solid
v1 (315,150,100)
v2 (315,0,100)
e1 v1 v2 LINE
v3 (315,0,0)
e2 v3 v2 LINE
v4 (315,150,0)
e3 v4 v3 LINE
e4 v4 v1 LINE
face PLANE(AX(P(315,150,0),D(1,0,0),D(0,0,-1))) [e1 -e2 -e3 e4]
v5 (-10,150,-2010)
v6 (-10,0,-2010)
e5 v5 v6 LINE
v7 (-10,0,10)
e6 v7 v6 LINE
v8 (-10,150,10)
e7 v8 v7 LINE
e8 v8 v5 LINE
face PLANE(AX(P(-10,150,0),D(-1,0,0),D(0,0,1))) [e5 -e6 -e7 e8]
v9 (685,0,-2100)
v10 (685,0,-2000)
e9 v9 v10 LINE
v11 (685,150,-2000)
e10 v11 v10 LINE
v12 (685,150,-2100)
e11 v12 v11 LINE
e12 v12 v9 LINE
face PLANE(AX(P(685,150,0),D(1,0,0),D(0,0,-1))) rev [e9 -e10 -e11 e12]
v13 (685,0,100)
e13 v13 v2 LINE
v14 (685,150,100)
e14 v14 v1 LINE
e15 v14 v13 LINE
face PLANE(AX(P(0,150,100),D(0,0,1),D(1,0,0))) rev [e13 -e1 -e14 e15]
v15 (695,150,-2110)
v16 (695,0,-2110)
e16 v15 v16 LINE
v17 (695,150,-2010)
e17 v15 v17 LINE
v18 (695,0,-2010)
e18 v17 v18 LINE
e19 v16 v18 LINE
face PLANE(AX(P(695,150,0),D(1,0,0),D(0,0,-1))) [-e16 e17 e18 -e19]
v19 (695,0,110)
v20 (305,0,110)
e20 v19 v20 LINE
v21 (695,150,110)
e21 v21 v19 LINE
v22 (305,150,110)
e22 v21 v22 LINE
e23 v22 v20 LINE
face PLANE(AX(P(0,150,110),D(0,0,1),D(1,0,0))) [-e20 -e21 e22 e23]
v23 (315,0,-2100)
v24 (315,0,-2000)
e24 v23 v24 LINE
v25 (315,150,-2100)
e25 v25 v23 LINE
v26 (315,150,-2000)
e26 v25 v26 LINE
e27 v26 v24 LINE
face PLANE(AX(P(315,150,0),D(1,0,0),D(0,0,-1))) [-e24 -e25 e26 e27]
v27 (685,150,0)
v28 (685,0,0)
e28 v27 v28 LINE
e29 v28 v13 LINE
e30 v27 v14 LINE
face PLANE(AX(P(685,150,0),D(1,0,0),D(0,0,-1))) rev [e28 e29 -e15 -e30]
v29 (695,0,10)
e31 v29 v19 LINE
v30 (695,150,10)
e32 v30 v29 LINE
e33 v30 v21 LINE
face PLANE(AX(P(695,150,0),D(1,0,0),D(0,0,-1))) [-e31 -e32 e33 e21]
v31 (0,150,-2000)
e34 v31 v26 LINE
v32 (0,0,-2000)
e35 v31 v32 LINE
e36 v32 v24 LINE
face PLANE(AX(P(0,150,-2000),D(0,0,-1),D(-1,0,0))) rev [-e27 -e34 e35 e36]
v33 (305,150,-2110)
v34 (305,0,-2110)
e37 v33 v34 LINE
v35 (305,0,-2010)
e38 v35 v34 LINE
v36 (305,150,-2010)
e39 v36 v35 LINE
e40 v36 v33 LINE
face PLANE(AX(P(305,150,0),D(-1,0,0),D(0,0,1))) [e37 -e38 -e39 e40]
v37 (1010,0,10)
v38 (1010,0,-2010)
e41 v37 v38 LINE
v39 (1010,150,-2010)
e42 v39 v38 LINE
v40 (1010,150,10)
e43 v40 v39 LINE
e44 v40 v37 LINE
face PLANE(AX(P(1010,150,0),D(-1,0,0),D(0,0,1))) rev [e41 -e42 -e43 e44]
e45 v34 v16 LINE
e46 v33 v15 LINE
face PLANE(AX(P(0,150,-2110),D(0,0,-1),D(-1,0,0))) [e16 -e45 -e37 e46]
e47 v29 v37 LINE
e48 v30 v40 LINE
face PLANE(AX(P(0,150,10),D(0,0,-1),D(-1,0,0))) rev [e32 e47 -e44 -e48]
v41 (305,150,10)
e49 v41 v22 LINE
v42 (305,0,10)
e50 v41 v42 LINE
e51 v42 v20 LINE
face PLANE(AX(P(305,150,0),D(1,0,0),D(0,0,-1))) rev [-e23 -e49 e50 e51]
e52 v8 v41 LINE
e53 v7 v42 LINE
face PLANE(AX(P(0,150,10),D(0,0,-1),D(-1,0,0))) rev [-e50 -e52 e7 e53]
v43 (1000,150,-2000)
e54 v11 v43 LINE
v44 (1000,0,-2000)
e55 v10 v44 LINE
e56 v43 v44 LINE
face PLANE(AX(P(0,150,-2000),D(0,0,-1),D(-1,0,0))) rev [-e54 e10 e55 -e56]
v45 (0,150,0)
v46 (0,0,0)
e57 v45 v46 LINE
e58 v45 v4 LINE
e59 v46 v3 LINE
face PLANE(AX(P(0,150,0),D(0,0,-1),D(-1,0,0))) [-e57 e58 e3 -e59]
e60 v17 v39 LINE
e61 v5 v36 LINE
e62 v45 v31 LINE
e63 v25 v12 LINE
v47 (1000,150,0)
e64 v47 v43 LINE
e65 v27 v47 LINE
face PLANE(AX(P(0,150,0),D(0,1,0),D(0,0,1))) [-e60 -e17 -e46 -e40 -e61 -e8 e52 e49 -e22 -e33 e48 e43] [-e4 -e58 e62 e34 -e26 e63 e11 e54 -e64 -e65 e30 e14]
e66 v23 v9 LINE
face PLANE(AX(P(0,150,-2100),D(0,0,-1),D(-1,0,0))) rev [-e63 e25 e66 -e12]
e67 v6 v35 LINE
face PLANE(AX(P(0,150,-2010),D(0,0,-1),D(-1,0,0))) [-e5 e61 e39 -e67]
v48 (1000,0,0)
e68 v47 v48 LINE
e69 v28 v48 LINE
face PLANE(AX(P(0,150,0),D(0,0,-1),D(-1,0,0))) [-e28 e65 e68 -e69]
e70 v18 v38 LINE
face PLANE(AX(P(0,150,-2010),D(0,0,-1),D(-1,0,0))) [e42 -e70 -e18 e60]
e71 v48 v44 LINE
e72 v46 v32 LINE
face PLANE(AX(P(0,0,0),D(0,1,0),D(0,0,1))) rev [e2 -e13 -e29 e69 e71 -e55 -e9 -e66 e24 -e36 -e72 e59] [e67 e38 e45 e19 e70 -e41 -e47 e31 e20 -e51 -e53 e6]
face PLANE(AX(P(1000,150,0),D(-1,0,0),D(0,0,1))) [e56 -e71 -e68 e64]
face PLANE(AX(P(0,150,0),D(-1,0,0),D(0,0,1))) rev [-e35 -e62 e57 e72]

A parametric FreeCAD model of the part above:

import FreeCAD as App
import Part
import Sketcher
from FreeCAD import Vector
Q = App.Units.Quantity


def add_polygon(sketch, points):
    """Adds a closed chain of lines whose ends are joined by coincident constraints."""
    first, n = sketch.GeometryCount, len(points)
    for a, b in zip(points, points[1:] + points[:1]):
        sketch.addGeometry(Part.LineSegment(App.Vector(*a, 0), App.Vector(*b, 0)), False)
    for i in range(n):
        sketch.addConstraint(Sketcher.Constraint("Coincident", first + i, 2, first + (i + 1) % n, 1))

doc = App.newDocument("Part")
params = doc.addObject("Spreadsheet::Sheet", "Params")
for row, (alias, value) in enumerate([
    ("sketch1_width", "315 mm"),
    ("sketch1_width2", "390 mm"),
    ("sketch1_width3", "370 mm"),
    ("sketch1_height", "2020 mm"),
    ("sketch1_height2", "100 mm"),
    ("pad1_length", "150 mm"),
], start=1):
    params.set(f"A{row}", alias)
    params.set(f"B{row}", "=" + value)
    params.setAlias(f"B{row}", alias)

body = doc.addObject("PartDesign::Body", "Body")

sketch1 = body.newObject("Sketcher::SketchObject", "Sketch")
sketch1.AttachmentSupport = (doc.getObject("XZ_Plane"), [""])
sketch1.MapMode = "FlatFace"
add_polygon(sketch1, [(305, -2010), (-10, -2010), (-10, 10), (305, 10), (305, 110), (695, 110), (695, 10), (1010, 10), (1010, -2010), (695, -2010), (695, -2110), (305, -2110)])
add_polygon(sketch1, [(315, 100), (315, 0), (0, 0), (0, -2000), (315, -2000), (315, -2100), (685, -2100), (685, -2000), (1000, -2000), (1000, 0), (685, 0), (685, 100)])
sketch1.addConstraint([
    Sketcher.Constraint("Horizontal", 0),
    Sketcher.Constraint("Vertical", 1),
    Sketcher.Constraint("Horizontal", 2),
    Sketcher.Constraint("Vertical", 3),
    Sketcher.Constraint("Horizontal", 4),
    Sketcher.Constraint("Vertical", 5),
    Sketcher.Constraint("Horizontal", 6),
    Sketcher.Constraint("Vertical", 7),
    Sketcher.Constraint("Horizontal", 8),
    Sketcher.Constraint("Vertical", 9),
    Sketcher.Constraint("Horizontal", 10),
    Sketcher.Constraint("Vertical", 11),
    Sketcher.Constraint("Vertical", 12),
    Sketcher.Constraint("Horizontal", 13),
    Sketcher.Constraint("Vertical", 14),
    Sketcher.Constraint("Horizontal", 15),
    Sketcher.Constraint("Vertical", 16),
    Sketcher.Constraint("Horizontal", 17),
    Sketcher.Constraint("Vertical", 18),
    Sketcher.Constraint("Horizontal", 19),
    Sketcher.Constraint("Vertical", 20),
    Sketcher.Constraint("Horizontal", 21),
    Sketcher.Constraint("Vertical", 22),
    Sketcher.Constraint("Horizontal", 23),
    Sketcher.Constraint("Coincident", 13, 2, -1, 1),
    Sketcher.Constraint("PointOnObject", 20, 2, -1),
    Sketcher.Constraint("Horizontal", 2, 2, 5, 2),
    Sketcher.Constraint("Horizontal", 0, 2, 7, 2),
    Sketcher.Constraint("Horizontal", 15, 2, 18, 2),
    Sketcher.Constraint("Vertical", 5, 2, 8, 2),
    Sketcher.Constraint("Vertical", 3, 2, 10, 2),
    Sketcher.Constraint("Vertical", 12, 2, 15, 2),
    Sketcher.Constraint("Vertical", 18, 2, 21, 2),
    Sketcher.Constraint("Equal", 2, 6),
    Sketcher.Constraint("Equal", 8, 13),
    Sketcher.Constraint("Equal", 15, 19),
    Sketcher.Constraint("Equal", 5, 9),
    Sketcher.Constraint("Equal", 11, 12),
    Sketcher.Constraint("Equal", 12, 16),
    Sketcher.Constraint("DistanceX", 0, 2, 0, 1, Q("315 mm")),
    Sketcher.Constraint("DistanceX", 4, 1, 4, 2, Q("390 mm")),
    Sketcher.Constraint("DistanceX", 17, 1, 17, 2, Q("370 mm")),
    Sketcher.Constraint("DistanceY", 1, 1, 1, 2, Q("2020 mm")),
    Sketcher.Constraint("DistanceY", 3, 1, 3, 2, Q("100 mm")),
    Sketcher.Constraint("DistanceY", 14, 2, 14, 1, Q("2000 mm")),
    Sketcher.Constraint("DistanceX", 0, 2, -1, 1, Q("10 mm")),
    Sketcher.Constraint("DistanceY", 0, 2, -1, 1, Q("2010 mm")),
])
sketch1.setExpression("Constraints[63]", "Params.sketch1_width")
sketch1.setExpression("Constraints[64]", "Params.sketch1_width2")
sketch1.setExpression("Constraints[65]", "Params.sketch1_width3")
sketch1.setExpression("Constraints[66]", "Params.sketch1_height")
sketch1.setExpression("Constraints[67]", "Params.sketch1_height2")
pad1 = body.newObject("PartDesign::Pad", "Pad")
pad1.Profile = sketch1
pad1.setExpression("Length", "Params.pad1_length")
pad1.Reversed = True

doc.recompute()
